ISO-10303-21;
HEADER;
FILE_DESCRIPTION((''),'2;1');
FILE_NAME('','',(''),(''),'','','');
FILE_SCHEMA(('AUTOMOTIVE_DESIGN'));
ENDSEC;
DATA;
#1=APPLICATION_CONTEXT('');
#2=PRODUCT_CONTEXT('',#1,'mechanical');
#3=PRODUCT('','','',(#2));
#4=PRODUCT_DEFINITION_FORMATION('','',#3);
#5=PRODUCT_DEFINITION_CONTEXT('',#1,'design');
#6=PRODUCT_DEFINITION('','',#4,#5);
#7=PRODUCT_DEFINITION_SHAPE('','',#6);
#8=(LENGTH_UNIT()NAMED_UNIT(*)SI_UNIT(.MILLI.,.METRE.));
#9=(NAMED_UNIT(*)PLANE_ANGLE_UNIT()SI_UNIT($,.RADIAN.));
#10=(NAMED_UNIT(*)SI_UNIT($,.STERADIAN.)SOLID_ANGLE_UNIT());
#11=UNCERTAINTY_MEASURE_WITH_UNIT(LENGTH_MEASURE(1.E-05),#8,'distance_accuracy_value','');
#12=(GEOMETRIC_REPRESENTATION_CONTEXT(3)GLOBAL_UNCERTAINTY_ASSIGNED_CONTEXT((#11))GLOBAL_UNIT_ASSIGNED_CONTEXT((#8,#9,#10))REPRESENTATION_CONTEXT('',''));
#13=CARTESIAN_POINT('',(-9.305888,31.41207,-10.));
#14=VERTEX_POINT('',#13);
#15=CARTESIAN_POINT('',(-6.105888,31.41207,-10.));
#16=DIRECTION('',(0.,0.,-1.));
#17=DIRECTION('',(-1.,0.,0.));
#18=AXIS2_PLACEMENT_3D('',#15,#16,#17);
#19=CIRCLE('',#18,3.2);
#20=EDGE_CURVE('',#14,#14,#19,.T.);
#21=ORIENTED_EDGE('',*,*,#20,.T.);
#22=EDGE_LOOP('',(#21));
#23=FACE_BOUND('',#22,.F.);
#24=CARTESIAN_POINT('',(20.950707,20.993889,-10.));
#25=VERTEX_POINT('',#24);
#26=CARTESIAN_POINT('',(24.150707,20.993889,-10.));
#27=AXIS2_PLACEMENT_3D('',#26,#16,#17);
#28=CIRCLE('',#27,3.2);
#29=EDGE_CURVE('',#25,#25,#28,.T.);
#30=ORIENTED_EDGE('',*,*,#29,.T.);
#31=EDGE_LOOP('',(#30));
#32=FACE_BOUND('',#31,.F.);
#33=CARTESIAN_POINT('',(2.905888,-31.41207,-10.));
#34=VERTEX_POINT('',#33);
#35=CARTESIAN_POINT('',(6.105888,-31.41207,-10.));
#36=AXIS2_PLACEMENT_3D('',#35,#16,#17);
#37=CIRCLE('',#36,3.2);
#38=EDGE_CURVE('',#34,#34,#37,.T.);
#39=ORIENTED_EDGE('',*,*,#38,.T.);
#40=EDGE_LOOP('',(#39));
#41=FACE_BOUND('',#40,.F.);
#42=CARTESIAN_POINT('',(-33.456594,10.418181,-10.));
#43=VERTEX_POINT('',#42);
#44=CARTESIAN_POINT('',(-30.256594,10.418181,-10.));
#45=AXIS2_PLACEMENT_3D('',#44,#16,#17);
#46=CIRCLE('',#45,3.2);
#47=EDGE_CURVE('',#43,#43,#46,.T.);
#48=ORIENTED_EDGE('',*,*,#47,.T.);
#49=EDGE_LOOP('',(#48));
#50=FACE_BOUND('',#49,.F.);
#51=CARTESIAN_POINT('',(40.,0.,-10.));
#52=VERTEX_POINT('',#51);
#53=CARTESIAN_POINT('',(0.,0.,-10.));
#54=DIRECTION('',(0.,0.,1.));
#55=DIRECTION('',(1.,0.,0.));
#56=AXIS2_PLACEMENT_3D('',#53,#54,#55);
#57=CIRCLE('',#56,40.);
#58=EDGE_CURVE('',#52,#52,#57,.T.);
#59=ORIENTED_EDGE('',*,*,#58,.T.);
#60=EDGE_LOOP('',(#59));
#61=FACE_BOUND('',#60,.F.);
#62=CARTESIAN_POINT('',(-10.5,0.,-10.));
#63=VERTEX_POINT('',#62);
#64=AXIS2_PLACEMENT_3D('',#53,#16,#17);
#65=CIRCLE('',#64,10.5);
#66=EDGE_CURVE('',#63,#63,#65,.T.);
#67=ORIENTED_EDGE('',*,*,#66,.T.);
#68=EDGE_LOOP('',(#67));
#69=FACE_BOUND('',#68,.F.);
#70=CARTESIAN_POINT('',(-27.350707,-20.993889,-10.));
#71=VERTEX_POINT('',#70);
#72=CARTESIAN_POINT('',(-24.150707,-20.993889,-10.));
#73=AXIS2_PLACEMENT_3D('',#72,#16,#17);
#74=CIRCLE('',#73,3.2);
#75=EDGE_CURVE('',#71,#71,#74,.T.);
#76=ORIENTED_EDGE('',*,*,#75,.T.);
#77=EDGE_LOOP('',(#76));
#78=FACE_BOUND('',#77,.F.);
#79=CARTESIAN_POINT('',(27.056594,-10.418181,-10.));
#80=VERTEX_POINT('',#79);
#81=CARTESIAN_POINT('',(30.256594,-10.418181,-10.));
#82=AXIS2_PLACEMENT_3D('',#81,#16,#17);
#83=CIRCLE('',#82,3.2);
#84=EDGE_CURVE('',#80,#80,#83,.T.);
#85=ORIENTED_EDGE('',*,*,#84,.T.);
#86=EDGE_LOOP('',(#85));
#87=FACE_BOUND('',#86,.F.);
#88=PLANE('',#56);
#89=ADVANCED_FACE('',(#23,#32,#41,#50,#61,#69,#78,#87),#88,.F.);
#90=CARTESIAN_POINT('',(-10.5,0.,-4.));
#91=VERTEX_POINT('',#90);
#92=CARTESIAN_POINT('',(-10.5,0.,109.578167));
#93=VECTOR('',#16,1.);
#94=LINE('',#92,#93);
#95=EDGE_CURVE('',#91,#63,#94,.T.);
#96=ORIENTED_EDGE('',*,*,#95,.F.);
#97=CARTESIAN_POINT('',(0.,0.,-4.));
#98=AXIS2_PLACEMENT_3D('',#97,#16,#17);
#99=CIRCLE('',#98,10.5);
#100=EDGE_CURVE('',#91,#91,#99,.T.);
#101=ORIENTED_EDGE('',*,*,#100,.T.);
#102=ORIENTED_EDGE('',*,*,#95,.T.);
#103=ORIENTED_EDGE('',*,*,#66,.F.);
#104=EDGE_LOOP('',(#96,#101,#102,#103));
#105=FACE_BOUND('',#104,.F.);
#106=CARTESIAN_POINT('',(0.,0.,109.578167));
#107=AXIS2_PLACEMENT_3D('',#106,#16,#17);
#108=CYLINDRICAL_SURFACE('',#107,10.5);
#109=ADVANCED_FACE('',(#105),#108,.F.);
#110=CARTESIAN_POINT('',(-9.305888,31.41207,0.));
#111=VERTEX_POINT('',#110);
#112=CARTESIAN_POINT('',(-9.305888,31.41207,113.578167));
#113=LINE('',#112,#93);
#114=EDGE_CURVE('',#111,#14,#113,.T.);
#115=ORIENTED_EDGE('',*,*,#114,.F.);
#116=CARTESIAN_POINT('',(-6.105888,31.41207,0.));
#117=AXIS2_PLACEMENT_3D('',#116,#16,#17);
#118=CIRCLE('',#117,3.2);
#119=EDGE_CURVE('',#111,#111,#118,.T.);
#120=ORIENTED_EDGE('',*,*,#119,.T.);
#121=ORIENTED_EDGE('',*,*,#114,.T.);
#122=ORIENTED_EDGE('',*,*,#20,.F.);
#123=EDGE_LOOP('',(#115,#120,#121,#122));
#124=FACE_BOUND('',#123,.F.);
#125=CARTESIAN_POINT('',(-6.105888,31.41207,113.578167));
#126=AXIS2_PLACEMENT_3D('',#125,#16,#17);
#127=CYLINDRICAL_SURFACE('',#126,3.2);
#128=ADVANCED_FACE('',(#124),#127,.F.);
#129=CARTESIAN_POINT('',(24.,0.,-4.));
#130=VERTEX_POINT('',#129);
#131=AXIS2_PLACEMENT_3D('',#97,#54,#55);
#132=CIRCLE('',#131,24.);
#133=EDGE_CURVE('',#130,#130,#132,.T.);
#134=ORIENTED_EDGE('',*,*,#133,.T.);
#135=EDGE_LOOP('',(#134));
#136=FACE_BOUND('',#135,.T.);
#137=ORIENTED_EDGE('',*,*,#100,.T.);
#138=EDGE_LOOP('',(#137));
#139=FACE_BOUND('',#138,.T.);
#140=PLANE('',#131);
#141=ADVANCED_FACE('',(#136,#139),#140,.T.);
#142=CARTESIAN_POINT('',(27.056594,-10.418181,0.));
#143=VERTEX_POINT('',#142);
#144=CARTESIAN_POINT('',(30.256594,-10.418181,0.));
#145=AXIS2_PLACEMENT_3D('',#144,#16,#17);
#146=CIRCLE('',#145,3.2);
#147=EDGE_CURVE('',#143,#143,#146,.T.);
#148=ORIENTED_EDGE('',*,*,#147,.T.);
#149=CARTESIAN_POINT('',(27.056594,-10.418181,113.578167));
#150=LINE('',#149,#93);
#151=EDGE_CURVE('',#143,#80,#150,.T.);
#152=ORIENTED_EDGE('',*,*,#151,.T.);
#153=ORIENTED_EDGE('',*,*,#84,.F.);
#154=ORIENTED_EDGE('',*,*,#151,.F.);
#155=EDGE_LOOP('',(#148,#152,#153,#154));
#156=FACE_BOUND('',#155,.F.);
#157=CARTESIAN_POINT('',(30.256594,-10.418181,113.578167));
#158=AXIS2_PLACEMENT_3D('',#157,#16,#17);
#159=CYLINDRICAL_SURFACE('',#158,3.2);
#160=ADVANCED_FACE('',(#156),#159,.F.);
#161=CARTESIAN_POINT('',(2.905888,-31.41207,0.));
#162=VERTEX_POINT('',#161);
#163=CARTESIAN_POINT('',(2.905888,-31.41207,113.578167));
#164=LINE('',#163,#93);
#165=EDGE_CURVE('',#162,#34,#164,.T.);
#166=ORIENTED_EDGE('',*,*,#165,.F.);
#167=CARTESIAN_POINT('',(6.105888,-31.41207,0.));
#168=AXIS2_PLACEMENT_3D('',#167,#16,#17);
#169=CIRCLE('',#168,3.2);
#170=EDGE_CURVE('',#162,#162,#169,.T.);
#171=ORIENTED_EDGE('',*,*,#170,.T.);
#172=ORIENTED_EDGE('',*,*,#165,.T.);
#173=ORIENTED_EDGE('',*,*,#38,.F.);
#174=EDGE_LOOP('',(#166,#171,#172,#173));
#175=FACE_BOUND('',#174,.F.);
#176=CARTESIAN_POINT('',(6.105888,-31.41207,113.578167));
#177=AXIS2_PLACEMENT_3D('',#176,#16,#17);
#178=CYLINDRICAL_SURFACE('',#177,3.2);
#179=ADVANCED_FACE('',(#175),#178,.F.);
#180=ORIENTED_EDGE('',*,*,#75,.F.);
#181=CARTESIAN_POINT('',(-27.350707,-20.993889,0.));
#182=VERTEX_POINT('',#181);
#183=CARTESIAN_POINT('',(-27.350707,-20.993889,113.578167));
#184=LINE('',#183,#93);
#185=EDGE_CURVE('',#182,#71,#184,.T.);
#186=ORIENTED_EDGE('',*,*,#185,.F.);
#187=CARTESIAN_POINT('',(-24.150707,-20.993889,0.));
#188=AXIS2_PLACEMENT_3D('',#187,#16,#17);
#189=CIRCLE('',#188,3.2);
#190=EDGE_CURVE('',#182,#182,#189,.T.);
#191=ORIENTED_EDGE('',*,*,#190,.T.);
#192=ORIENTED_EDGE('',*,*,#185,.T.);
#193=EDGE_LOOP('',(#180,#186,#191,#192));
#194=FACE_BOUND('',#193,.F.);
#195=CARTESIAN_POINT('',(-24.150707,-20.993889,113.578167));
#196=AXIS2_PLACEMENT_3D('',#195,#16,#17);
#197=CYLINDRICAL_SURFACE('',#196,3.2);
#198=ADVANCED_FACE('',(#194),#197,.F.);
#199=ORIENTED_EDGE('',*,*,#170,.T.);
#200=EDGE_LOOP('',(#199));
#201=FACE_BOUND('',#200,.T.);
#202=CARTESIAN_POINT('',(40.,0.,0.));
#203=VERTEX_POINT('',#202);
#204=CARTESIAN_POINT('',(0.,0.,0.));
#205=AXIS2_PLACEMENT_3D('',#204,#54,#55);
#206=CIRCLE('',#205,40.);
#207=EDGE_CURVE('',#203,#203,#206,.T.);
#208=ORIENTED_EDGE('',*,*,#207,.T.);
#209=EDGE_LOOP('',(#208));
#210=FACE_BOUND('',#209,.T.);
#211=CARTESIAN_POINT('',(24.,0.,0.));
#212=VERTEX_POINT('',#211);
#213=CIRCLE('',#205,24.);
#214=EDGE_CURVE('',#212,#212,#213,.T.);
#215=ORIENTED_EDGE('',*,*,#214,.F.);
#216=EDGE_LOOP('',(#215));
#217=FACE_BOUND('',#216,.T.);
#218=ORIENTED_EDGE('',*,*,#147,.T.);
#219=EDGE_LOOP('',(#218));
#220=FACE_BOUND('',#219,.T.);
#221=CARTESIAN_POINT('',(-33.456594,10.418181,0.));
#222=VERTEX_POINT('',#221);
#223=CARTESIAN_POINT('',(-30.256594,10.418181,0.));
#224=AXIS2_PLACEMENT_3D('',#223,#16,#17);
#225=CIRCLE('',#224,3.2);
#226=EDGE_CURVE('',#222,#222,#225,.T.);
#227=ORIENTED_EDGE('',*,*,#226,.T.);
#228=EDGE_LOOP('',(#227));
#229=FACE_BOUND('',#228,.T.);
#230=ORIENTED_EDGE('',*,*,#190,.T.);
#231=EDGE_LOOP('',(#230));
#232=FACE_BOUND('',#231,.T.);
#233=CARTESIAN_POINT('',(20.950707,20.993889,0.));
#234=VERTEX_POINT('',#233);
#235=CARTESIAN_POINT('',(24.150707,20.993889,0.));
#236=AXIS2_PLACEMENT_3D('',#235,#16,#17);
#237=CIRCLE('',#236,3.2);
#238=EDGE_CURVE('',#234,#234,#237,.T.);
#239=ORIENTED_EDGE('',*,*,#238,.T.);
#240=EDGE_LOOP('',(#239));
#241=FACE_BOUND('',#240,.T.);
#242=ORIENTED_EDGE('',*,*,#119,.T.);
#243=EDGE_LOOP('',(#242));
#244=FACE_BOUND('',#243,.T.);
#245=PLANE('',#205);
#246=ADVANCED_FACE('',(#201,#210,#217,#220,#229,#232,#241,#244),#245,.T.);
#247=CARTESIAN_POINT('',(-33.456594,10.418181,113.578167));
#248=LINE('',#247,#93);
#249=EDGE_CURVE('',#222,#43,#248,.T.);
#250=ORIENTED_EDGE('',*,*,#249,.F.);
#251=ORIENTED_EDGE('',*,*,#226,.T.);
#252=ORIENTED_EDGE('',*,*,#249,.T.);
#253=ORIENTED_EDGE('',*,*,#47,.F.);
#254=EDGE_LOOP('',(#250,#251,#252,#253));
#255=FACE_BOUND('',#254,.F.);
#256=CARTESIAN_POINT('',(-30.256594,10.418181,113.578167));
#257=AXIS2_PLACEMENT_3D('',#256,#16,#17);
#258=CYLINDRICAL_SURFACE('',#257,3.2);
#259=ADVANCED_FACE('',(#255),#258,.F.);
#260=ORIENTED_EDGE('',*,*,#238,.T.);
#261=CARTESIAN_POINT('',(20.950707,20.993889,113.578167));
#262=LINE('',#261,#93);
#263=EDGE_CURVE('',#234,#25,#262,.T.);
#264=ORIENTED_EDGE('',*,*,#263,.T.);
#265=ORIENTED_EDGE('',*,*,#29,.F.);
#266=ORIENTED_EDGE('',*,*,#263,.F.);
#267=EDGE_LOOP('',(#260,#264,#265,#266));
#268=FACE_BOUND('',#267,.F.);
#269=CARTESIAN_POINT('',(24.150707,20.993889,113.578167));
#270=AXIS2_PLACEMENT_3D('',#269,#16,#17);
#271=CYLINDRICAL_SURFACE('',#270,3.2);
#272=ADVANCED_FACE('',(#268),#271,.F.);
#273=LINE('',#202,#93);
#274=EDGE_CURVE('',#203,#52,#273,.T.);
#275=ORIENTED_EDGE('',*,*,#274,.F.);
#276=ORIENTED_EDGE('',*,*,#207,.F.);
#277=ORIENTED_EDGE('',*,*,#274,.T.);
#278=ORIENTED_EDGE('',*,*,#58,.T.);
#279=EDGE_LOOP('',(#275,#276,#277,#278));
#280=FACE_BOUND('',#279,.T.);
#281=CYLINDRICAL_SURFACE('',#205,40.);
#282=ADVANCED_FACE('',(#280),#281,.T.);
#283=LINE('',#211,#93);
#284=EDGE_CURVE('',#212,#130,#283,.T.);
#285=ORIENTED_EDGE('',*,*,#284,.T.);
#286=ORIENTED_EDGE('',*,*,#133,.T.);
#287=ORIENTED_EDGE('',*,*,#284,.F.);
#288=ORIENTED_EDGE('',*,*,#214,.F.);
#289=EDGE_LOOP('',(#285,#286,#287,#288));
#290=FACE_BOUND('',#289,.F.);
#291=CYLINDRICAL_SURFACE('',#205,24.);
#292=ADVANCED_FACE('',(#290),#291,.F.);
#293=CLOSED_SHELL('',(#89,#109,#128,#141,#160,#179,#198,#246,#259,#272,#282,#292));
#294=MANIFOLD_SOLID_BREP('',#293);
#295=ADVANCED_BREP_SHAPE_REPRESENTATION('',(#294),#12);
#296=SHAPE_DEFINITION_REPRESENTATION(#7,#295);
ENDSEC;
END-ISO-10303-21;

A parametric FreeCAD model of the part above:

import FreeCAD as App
import Part
import Sketcher

V = App.Vector
Q = App.Units.Quantity

doc = App.newDocument("Part")
body = doc.addObject("PartDesign::Body", "Body")

sketch1 = doc.addObject("Sketcher::SketchObject", "Sketch")
body.addObject(sketch1)
sketch1.AttachmentSupport = (doc.XY_Plane, [""])
sketch1.MapMode = "FlatFace"
sketch1.addGeometry(Part.Circle(V(0, 0, 0), V(0, 0, 1), 40), False)
sketch1.addConstraint([
    Sketcher.Constraint("Coincident", 0, 3, -1, 1),
    Sketcher.Constraint("Diameter", 0, Q("80 mm")),
])
pad1 = doc.addObject("PartDesign::Pad", "Pad")
body.addObject(pad1)
pad1.Profile = sketch1
pad1.Length = 10
pad1.Reversed = True

sketch2 = doc.addObject("Sketcher::SketchObject", "Sketch001")
body.addObject(sketch2)
sketch2.AttachmentSupport = (doc.XY_Plane, [""])
sketch2.MapMode = "FlatFace"
sketch2.addGeometry(Part.Circle(V(0, 0, 0), V(0, 0, 1), 24), False)
sketch2.addConstraint([
    Sketcher.Constraint("Coincident", 0, 3, -1, 1),
    Sketcher.Constraint("Diameter", 0, Q("48 mm")),
])
pocket1 = doc.addObject("PartDesign::Pocket", "Pocket")
body.addObject(pocket1)
pocket1.Profile = sketch2
pocket1.Type = "TwoLengths"
pocket1.Length = 4
pocket1.Length2 = 10

sketch3 = doc.addObject("Sketcher::SketchObject", "Sketch002")
body.addObject(sketch3)
sketch3.AttachmentSupport = (doc.XY_Plane, [""])
sketch3.MapMode = "FlatFace"
sketch3.AttachmentOffset = App.Placement(V(0, 0, -4), App.Rotation())
sketch3.addGeometry(Part.Circle(V(0, 0, 0), V(0, 0, 1), 10), False)
sketch3.addConstraint([
    Sketcher.Constraint("Coincident", 0, 3, -1, 1),
    Sketcher.Constraint("Diameter", 0, Q("21 mm")),
])
doc.recompute()
hole = doc.addObject("PartDesign::Hole", "Hole")
body.addObject(hole)
hole.Profile = sketch3
hole.ThreadType = "None"
hole.Diameter = 21
hole.DepthType = "ThroughAll"

sketch4 = doc.addObject("Sketcher::SketchObject", "Sketch003")
body.addObject(sketch4)
sketch4.AttachmentSupport = (doc.XY_Plane, [""])
sketch4.MapMode = "FlatFace"
sketch4.addGeometry([
    Part.Circle(V(-6.1, 31.4, 0), V(0, 0, 1), 3.2),
    Part.Circle(V(24.2, 21, 0), V(0, 0, 1), 3.2),
    Part.Circle(V(30.3, -10.4, 0), V(0, 0, 1), 3.2),
    Part.Circle(V(6.1, -31.4, 0), V(0, 0, 1), 3.2),
    Part.Circle(V(-24.2, -21, 0), V(0, 0, 1), 3.2),
    Part.Circle(V(-30.3, 10.4, 0), V(0, 0, 1), 3.2),
], False)
sketch4.addConstraint([
    Sketcher.Constraint("Equal", 0, 1),
    Sketcher.Constraint("Equal", 1, 2),
    Sketcher.Constraint("Equal", 2, 3),
    Sketcher.Constraint("Equal", 3, 4),
    Sketcher.Constraint("Equal", 4, 5),
    Sketcher.Constraint("Symmetric", 0, 3, 3, 3, -1, 1),
    Sketcher.Constraint("Symmetric", 1, 3, 4, 3, -1, 1),
    Sketcher.Constraint("Symmetric", 2, 3, 5, 3, -1, 1),
    Sketcher.Constraint("Diameter", 0, Q("6.4 mm")),
    Sketcher.Constraint("DistanceX", 4, 3, 2, 3, Q("54.407301 mm")),
    Sketcher.Constraint("DistanceY", -1, 1, 0, 3, Q("31.41207 mm")),
    Sketcher.Constraint("DistanceY", -1, 1, 1, 3, Q("20.993889 mm")),
    Sketcher.Constraint("DistanceY", 2, 3, -1, 1, Q("10.418181 mm")),
    Sketcher.Constraint("DistanceX", 3, 3, 1, 3, Q("18.044819 mm")),
    Sketcher.Constraint("DistanceX", 5, 3, 2, 3, Q("60.513189 mm")),
])
doc.recompute()
hole2 = doc.addObject("PartDesign::Hole", "Hole001")
body.addObject(hole2)
hole2.Profile = sketch4
hole2.ThreadType = "None"
hole2.Diameter = 6.4
hole2.DepthType = "ThroughAll"

doc.recompute()
